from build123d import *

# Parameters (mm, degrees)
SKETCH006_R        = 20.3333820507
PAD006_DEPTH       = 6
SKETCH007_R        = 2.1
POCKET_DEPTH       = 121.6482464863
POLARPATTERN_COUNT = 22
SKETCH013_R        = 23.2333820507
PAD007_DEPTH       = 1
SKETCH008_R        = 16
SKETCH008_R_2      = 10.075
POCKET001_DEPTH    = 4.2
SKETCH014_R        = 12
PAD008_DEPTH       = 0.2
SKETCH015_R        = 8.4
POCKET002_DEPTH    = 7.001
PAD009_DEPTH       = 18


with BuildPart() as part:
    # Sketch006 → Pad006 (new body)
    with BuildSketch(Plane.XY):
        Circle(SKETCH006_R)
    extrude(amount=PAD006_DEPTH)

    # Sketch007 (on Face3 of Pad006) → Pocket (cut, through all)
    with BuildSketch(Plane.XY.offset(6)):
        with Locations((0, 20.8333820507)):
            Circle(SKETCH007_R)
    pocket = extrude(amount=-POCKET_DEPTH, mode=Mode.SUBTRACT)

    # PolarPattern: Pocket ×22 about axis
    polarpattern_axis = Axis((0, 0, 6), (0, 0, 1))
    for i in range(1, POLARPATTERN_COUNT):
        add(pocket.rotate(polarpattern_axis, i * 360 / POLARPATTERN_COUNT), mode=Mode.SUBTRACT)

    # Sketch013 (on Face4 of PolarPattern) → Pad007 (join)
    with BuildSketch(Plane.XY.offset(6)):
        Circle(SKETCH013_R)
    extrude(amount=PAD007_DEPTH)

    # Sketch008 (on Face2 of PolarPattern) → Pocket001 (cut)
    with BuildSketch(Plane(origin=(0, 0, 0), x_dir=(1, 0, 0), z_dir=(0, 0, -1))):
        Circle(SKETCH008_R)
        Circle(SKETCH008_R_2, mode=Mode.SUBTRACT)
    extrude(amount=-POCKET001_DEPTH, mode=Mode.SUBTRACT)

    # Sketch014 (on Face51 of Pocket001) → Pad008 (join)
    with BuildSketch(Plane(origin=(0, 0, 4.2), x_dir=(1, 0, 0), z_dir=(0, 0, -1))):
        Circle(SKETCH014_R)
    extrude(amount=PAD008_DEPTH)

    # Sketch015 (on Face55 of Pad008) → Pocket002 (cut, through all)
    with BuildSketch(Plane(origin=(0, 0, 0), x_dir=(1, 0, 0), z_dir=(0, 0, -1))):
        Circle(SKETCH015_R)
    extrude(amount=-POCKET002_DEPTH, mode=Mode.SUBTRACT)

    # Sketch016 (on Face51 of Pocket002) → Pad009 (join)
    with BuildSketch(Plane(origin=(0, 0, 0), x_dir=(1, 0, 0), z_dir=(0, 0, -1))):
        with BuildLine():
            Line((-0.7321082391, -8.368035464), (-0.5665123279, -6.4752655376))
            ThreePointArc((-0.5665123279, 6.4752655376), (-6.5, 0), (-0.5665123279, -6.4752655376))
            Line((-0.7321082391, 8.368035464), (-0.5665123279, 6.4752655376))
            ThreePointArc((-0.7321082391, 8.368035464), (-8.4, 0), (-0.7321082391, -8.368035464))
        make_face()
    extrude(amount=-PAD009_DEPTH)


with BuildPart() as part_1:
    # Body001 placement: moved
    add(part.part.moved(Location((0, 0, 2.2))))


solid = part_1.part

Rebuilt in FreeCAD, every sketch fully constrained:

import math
import FreeCAD as App
import Part
import Sketcher
Q = App.Units.Quantity

doc = App.newDocument("Part")
body = doc.addObject("PartDesign::Body", "Body")

# Sketch on XY plane
sketch1 = body.newObject("Sketcher::SketchObject", "Sketch")
sketch1.AttachmentSupport = (doc.getObject("XY_Plane"), [""])
sketch1.MapMode = "FlatFace"
sketch1.addGeometry(Part.Circle(App.Vector(0, 0, 0), App.Vector(0, 0, 1), 20), False)
sketch1.addConstraint([
    Sketcher.Constraint("Coincident", 0, 3, -1, 1),
    Sketcher.Constraint("Diameter", 0, 40.666764),
])
pad1 = body.newObject("PartDesign::Pad", "Pad")
pad1.Profile = sketch1
pad1.Length = 6

# Sketch on XY plane
sketch2 = body.newObject("Sketcher::SketchObject", "Sketch001")
sketch2.AttachmentSupport = (doc.getObject("XY_Plane"), [""])
sketch2.MapMode = "FlatFace"
sketch2.AttachmentOffset = App.Placement(App.Vector(0, 0, 6), App.Rotation())
sketch2.addGeometry(Part.Circle(App.Vector(0, 20.8, 0), App.Vector(0, 0, 1), 2.1), False)
sketch2.addConstraint([
    Sketcher.Constraint("PointOnObject", 0, 3, -2),
    Sketcher.Constraint("Diameter", 0, 4.2),
    Sketcher.Constraint("DistanceY", -1, 1, 0, 3, 20.833382),
])
pocket1 = body.newObject("PartDesign::Pocket", "Pocket")
pocket1.Profile = sketch2
pocket1.Type = "ThroughAll"
doc.recompute()

polarpattern = body.newObject("PartDesign::PolarPattern", "PolarPattern")
polarpattern.Originals = [pocket1]
polarpattern.Axis = (doc.getObject("Z_Axis"), [""])
polarpattern.Angle = 360
polarpattern.Occurrences = 22
body.Tip = polarpattern

# Sketch on XY plane
sketch3 = body.newObject("Sketcher::SketchObject", "Sketch002")
sketch3.AttachmentSupport = (doc.getObject("XY_Plane"), [""])
sketch3.MapMode = "FlatFace"
sketch3.AttachmentOffset = App.Placement(App.Vector(0, 0, 6), App.Rotation())
sketch3.addGeometry(Part.Circle(App.Vector(0, 0, 0), App.Vector(0, 0, 1), 23), False)
sketch3.addConstraint([
    Sketcher.Constraint("Coincident", 0, 3, -1, 1),
    Sketcher.Constraint("Diameter", 0, 46.466764),
])
pad2 = body.newObject("PartDesign::Pad", "Pad001")
pad2.Profile = sketch3
pad2.Length = 1

# Sketch on XY plane
sketch4 = body.newObject("Sketcher::SketchObject", "Sketch003")
sketch4.AttachmentSupport = (doc.getObject("XY_Plane"), [""])
sketch4.MapMode = "FlatFace"
sketch4.addGeometry([
    Part.Circle(App.Vector(0, 0, 0), App.Vector(0, 0, 1), 16),
    Part.Circle(App.Vector(0, 0, 0), App.Vector(0, 0, 1), 10),
], False)
sketch4.addConstraint([
    Sketcher.Constraint("Coincident", 0, 3, -1, 1),
    Sketcher.Constraint("Coincident", 1, 3, -1, 1),
    Sketcher.Constraint("Diameter", 0, 32.0),
    Sketcher.Constraint("Diameter", 1, 20.15),
])
pocket2 = body.newObject("PartDesign::Pocket", "Pocket001")
pocket2.Profile = sketch4
pocket2.Length = 4.2
pocket2.Reversed = True

# Sketch on XY plane
sketch5 = body.newObject("Sketcher::SketchObject", "Sketch004")
sketch5.AttachmentSupport = (doc.getObject("XY_Plane"), [""])
sketch5.MapMode = "FlatFace"
sketch5.AttachmentOffset = App.Placement(App.Vector(0, 0, 4.2), App.Rotation())
sketch5.addGeometry(Part.Circle(App.Vector(0, 0, 0), App.Vector(0, 0, 1), 12), False)
sketch5.addConstraint([
    Sketcher.Constraint("Coincident", 0, 3, -1, 1),
    Sketcher.Constraint("Diameter", 0, 24.0),
])
pad3 = body.newObject("PartDesign::Pad", "Pad002")
pad3.Profile = sketch5
pad3.Length = 0.2
pad3.Reversed = True

# Sketch on XY plane
sketch6 = body.newObject("Sketcher::SketchObject", "Sketch005")
sketch6.AttachmentSupport = (doc.getObject("XY_Plane"), [""])
sketch6.MapMode = "FlatFace"
sketch6.addGeometry(Part.Circle(App.Vector(0, 0, 0), App.Vector(0, 0, 1), 8), False)
sketch6.addConstraint([
    Sketcher.Constraint("Coincident", 0, 3, -1, 1),
    Sketcher.Constraint("Diameter", 0, 16.8),
])
pocket3 = body.newObject("PartDesign::Pocket", "Pocket002")
pocket3.Profile = sketch6
pocket3.Type = "ThroughAll"
pocket3.Reversed = True

# Sketch on XY plane
sketch7 = body.newObject("Sketcher::SketchObject", "Sketch006")
sketch7.AttachmentSupport = (doc.getObject("XY_Plane"), [""])
sketch7.MapMode = "FlatFace"
sketch7.addGeometry([
    Part.LineSegment(App.Vector(-0.7, 8.4, 0), App.Vector(-0.6, 6.5, 0)),
    Part.ArcOfCircle(Part.Circle(App.Vector(0, 0, 0), App.Vector(0, 0, 1), 6.5), math.radians(95), math.radians(265)),
    Part.LineSegment(App.Vector(-0.6, -6.5, 0), App.Vector(-0.7, -8.4, 0)),
    Part.ArcOfCircle(Part.Circle(App.Vector(0, 0, 0), App.Vector(0, 0, 1), 8.4), math.radians(95), math.radians(265)),
], False)
sketch7.addConstraint([
    Sketcher.Constraint("Coincident", 0, 2, 1, 1),
    Sketcher.Constraint("Coincident", 1, 2, 2, 1),
    Sketcher.Constraint("Coincident", 2, 2, 3, 2),
    Sketcher.Constraint("Coincident", 3, 1, 0, 1),
    Sketcher.Constraint("Coincident", 1, 3, -1, 1),
    Sketcher.Constraint("Coincident", 3, 3, -1, 1),
    Sketcher.Constraint("Vertical", 0, 2, 1, 2),
    Sketcher.Constraint("Vertical", 2, 2, 3, 1),
    Sketcher.Constraint("Radius", 1, 6.5),
    Sketcher.Constraint("Radius", 3, 8.4),
    Sketcher.Constraint("Angle", 0, Q("-85 deg")),
    Sketcher.Constraint("DistanceY", 2, 2, 0, 2, 14.843301),
])
pad4 = body.newObject("PartDesign::Pad", "Pad003")
pad4.Profile = sketch7
pad4.Length = 18
body2 = doc.addObject("PartDesign::Body", "Body001")
doc.recompute()

body.Placement = App.Placement(App.Vector(0, 0, 2.2), App.Rotation(App.Vector(0, 0, 1), 0))
boolean = body2.newObject("PartDesign::Boolean", "Boolean")
boolean.Type = "Fuse"
boolean.addObjects([body])

doc.recompute()
